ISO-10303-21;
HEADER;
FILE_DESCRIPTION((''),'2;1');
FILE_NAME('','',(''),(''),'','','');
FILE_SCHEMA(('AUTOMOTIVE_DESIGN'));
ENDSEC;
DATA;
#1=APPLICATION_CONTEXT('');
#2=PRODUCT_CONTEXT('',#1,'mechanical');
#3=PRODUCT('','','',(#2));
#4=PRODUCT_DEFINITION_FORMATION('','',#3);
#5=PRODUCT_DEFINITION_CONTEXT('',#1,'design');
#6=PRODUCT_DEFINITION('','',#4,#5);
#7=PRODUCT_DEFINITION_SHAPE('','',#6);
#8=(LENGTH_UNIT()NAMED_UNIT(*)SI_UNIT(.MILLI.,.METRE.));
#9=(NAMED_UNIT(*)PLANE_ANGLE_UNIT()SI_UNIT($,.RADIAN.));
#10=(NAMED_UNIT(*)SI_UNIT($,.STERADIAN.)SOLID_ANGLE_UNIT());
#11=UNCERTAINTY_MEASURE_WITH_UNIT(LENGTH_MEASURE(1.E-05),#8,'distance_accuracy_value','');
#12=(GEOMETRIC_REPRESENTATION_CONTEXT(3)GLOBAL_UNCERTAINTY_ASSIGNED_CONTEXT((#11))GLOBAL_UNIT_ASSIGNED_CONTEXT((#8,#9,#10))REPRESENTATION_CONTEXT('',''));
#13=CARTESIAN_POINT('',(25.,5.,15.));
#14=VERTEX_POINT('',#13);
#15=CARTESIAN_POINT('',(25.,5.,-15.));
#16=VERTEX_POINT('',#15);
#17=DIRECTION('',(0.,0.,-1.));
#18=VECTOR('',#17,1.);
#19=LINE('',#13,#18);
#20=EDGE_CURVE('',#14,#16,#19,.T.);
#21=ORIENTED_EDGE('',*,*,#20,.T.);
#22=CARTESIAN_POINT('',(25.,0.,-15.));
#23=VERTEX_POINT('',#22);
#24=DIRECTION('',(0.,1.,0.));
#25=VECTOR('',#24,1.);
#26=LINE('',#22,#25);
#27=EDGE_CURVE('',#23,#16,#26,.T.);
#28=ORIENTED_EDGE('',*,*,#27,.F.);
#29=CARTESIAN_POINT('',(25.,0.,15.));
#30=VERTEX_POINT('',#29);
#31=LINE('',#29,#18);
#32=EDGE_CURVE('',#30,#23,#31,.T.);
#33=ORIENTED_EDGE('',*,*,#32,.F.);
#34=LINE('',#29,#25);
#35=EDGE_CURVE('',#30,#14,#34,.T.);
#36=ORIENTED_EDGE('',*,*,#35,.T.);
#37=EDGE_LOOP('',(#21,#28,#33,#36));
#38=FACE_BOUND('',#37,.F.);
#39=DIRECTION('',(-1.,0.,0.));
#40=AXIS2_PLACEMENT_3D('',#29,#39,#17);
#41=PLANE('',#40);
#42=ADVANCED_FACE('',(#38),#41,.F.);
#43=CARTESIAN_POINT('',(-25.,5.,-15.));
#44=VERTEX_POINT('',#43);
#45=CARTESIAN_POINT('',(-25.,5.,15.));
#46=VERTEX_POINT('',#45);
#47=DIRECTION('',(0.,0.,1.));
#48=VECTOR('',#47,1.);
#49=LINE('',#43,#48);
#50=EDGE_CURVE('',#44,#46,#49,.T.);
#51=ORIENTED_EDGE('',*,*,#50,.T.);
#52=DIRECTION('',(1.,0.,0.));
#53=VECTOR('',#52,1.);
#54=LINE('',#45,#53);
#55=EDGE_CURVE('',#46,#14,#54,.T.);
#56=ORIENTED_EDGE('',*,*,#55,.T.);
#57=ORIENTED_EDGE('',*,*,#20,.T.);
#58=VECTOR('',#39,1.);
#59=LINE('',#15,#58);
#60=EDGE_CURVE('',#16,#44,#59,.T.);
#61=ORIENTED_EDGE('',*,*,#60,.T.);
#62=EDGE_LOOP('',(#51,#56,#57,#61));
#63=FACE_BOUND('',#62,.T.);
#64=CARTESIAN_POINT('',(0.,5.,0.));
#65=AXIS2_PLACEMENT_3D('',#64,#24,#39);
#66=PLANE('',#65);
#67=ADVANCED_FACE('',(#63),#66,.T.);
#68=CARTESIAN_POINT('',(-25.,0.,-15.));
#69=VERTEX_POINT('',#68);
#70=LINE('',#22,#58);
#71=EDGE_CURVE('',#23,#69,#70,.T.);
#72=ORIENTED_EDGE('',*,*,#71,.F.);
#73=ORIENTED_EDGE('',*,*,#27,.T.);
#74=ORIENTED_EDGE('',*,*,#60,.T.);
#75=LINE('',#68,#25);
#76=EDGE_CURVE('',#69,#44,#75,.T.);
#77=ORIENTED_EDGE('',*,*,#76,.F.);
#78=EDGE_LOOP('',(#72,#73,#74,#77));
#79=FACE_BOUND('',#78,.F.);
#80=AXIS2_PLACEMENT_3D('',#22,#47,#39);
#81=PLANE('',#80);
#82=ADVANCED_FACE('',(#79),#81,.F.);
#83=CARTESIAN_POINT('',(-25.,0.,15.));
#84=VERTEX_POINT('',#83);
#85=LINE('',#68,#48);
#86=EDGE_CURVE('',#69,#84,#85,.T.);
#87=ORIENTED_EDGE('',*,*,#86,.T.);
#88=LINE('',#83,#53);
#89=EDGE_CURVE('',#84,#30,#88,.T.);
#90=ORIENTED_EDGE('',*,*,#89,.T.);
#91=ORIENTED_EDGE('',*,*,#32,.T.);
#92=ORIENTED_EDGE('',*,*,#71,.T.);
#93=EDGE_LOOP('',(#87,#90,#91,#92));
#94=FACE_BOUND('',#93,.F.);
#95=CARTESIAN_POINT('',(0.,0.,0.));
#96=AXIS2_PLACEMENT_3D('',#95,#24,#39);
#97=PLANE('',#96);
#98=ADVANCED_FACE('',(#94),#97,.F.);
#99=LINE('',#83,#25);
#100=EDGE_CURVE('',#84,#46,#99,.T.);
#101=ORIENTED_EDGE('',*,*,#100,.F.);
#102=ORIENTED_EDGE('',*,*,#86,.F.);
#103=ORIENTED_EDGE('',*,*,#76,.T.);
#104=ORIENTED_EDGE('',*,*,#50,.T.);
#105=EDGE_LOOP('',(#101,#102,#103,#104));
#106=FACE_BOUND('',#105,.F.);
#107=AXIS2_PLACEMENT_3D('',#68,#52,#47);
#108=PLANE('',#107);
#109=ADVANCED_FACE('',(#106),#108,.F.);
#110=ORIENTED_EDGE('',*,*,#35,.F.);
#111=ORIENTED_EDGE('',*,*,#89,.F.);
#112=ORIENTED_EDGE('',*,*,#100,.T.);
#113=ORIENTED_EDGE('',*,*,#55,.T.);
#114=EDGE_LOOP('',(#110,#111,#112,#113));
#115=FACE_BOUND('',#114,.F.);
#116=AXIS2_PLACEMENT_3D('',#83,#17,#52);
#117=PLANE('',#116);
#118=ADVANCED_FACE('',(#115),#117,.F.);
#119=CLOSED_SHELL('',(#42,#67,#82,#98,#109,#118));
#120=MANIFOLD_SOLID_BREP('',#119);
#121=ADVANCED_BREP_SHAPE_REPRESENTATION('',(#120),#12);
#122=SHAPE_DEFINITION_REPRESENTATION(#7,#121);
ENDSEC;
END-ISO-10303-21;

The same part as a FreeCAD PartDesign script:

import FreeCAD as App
import Part
import Sketcher

V = App.Vector


def add_polygon(sketch, points):
    """Adds a closed chain of lines whose ends are joined by coincident constraints."""
    first, n = sketch.GeometryCount, len(points)
    for a, b in zip(points, points[1:] + points[:1]):
        sketch.addGeometry(Part.LineSegment(App.Vector(*a, 0), App.Vector(*b, 0)), False)
    for i in range(n):
        sketch.addConstraint(Sketcher.Constraint("Coincident", first + i, 2, first + (i + 1) % n, 1))

doc = App.newDocument("Part")
body = doc.addObject("PartDesign::Body", "Body")

# Sketch on XZ plane
sketch1 = doc.addObject("Sketcher::SketchObject", "Sketch")
body.addObject(sketch1)
sketch1.AttachmentSupport = (doc.XZ_Plane, [""])
sketch1.MapMode = "FlatFace"
add_polygon(sketch1, [(25, 15), (25, -15), (-25, -15), (-25, 15)])  # lines 0-3
sketch1.addConstraint([
    Sketcher.Constraint("Vertical", 0),
    Sketcher.Constraint("Horizontal", 1),
    Sketcher.Constraint("Vertical", 2),
    Sketcher.Constraint("Horizontal", 3),
    Sketcher.Constraint("Symmetric", 0, 2, 2, 2, -1, 1),
    Sketcher.Constraint("DistanceX", 1, 2, 1, 1, 50.0),
    Sketcher.Constraint("DistanceY", 0, 2, 0, 1, 30.0),
])
pad1 = doc.addObject("PartDesign::Pad", "Pad")
body.addObject(pad1)
pad1.Profile = sketch1
pad1.Length = 5
pad1.Reversed = True

doc.recompute()
